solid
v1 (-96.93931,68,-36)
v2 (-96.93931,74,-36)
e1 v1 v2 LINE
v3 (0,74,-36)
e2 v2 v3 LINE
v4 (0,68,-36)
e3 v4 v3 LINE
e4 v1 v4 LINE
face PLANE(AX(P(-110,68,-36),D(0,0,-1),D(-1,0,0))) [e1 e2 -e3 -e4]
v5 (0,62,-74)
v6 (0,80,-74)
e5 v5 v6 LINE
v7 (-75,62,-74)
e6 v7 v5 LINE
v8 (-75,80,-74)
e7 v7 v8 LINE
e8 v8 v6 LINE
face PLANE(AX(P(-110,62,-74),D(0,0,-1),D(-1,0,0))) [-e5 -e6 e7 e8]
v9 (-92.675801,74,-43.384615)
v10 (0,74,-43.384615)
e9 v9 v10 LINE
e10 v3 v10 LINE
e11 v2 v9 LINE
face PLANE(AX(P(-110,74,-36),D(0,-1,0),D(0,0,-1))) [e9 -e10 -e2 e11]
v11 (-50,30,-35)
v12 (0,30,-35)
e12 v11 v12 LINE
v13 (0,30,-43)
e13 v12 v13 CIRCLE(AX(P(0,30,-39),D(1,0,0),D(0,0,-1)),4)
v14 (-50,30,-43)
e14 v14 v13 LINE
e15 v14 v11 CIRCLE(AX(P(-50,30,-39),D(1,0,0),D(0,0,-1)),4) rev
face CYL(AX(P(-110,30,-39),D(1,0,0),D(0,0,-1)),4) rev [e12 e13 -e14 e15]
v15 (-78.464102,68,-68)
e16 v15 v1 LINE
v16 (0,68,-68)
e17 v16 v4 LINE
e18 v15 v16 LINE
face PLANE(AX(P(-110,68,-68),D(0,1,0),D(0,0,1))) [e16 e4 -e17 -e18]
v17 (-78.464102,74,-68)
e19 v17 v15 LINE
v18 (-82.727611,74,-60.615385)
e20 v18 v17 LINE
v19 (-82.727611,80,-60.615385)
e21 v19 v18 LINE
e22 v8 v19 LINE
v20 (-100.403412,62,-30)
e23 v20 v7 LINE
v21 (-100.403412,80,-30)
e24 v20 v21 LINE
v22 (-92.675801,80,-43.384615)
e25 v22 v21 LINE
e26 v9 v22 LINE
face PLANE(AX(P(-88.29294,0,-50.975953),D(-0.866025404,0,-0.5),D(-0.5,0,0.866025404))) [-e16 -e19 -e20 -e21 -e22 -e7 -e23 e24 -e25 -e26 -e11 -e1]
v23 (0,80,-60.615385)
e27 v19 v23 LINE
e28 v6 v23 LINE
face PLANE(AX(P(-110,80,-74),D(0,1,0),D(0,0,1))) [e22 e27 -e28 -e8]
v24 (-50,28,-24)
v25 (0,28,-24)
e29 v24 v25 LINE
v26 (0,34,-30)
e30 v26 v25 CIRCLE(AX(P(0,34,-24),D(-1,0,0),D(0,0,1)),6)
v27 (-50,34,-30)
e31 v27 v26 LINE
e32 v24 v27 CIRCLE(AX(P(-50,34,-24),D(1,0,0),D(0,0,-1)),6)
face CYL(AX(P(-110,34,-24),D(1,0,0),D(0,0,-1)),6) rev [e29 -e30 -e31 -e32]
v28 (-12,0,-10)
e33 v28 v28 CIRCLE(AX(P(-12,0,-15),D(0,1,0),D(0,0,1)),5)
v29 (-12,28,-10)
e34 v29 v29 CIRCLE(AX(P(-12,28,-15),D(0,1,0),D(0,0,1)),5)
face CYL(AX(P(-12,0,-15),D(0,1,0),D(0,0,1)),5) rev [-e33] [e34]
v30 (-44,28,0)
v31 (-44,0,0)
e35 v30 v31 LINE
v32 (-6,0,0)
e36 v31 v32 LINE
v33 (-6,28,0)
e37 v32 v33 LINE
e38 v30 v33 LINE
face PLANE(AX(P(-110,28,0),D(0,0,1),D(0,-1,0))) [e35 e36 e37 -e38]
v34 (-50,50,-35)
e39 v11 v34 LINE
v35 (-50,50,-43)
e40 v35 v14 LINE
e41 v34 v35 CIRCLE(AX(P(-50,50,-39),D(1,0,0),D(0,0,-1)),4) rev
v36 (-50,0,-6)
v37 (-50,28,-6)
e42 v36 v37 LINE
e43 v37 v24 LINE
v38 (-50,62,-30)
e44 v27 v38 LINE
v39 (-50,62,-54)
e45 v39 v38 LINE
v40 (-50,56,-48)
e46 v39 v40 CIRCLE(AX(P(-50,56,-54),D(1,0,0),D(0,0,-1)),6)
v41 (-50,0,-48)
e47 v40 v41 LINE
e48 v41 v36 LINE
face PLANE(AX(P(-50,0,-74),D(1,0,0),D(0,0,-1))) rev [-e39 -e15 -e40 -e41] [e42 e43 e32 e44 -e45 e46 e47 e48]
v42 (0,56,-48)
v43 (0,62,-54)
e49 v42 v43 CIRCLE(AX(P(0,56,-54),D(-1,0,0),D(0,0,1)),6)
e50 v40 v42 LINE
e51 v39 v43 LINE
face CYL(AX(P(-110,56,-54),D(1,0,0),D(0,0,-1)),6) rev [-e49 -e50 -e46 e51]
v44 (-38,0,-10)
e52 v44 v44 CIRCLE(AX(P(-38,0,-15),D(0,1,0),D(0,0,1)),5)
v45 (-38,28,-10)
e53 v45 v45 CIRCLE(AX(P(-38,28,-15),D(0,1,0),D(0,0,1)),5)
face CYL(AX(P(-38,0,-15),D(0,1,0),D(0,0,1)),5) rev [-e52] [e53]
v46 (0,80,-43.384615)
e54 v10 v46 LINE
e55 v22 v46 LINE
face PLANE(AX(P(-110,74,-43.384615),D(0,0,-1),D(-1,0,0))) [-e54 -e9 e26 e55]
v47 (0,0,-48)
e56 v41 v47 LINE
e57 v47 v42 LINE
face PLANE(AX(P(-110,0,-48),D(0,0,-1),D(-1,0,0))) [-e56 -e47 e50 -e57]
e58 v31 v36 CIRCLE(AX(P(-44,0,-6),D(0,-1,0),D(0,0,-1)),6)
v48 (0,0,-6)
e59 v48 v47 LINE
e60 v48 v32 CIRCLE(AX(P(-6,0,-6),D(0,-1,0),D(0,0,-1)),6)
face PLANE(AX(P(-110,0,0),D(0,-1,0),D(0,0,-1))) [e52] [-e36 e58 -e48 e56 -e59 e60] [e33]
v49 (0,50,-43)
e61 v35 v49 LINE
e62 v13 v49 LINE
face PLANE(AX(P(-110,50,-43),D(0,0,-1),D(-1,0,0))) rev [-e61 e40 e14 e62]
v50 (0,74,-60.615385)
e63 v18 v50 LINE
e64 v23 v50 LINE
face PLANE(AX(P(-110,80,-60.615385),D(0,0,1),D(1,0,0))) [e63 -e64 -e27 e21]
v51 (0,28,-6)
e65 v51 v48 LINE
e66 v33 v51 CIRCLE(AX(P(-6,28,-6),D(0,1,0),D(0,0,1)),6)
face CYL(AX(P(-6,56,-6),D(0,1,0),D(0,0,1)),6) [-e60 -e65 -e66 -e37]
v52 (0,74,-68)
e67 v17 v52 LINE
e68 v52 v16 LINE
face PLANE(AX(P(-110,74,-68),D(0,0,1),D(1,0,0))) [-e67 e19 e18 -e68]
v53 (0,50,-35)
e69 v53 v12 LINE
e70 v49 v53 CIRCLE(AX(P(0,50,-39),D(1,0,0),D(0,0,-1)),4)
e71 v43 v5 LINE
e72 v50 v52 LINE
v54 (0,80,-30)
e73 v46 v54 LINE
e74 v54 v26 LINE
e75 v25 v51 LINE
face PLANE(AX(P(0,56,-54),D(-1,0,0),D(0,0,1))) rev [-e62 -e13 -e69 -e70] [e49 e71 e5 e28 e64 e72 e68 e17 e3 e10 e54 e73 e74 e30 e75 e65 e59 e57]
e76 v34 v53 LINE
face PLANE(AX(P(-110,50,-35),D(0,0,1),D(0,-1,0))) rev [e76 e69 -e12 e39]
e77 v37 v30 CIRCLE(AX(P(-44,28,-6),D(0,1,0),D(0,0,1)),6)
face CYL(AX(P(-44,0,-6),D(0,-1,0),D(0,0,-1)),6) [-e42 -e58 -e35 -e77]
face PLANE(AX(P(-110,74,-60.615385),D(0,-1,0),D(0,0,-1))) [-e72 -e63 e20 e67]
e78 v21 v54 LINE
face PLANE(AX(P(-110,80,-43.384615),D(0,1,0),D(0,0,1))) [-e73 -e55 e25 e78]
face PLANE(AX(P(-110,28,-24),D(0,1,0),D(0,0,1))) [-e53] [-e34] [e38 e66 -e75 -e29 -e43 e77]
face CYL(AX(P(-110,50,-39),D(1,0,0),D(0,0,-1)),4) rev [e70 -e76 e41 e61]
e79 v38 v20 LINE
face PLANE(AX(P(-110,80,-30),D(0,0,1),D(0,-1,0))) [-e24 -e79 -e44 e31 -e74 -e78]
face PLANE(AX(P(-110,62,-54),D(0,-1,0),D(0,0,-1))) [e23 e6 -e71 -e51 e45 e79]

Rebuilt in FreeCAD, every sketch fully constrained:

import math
import FreeCAD as App
import Part
import Sketcher

V = App.Vector
Q = App.Units.Quantity


def edges_at(feature, points):
    """Names of the edges that pass closest to the given points."""
    edges = feature.Shape.Edges
    near = lambda p: min(range(len(edges)), key=lambda i: edges[i].distToShape(Part.Vertex(*p))[0])
    return sorted({f"Edge{near(p) + 1}" for p in points})


def add_polygon(sketch, points):
    """Adds a closed chain of lines whose ends are joined by coincident constraints."""
    first, n = sketch.GeometryCount, len(points)
    for a, b in zip(points, points[1:] + points[:1]):
        sketch.addGeometry(Part.LineSegment(App.Vector(*a, 0), App.Vector(*b, 0)), False)
    for i in range(n):
        sketch.addConstraint(Sketcher.Constraint("Coincident", first + i, 2, first + (i + 1) % n, 1))

doc = App.newDocument("Part")
params = doc.addObject("Spreadsheet::Sheet", "Params")
for row, (alias, value) in enumerate([
    ("sketch1_radius", "6 mm"),
    ("sketch1_radius2", "4 mm"),
    ("sketch1_width", "56 mm"),
    ("sketch1_width2", "18 mm"),
    ("sketch1_width3", "6 mm"),
    ("pad1_length", "110 mm"),
    ("sketch2_width", "35 mm"),
    ("sketch3_height", "62 mm"),
    ("sketch4_diameter", "10 mm"),
    ("fillet_radius", "6 mm"),
], start=1):
    params.set(f"A{row}", alias)
    params.set(f"B{row}", "=" + value)
    params.setAlias(f"B{row}", alias)

body = doc.addObject("PartDesign::Body", "Body")

sketch1 = body.newObject("Sketcher::SketchObject", "Sketch")
sketch1.AttachmentSupport = (doc.getObject("YZ_Plane"), [""])
sketch1.MapMode = "FlatFace"
sketch1.addGeometry([
    Part.LineSegment(V(0, 0, 0), V(0, -48, 0)),
    Part.LineSegment(V(0, -48, 0), V(56, -48, 0)),
    Part.ArcOfCircle(Part.Circle(V(56, -54, 0), V(0, 0, 1), 6), math.radians(0), math.radians(90)),
    Part.LineSegment(V(62, -54, 0), V(62, -74, 0)),
    Part.LineSegment(V(62, -74, 0), V(80, -74, 0)),
    Part.LineSegment(V(80, -74, 0), V(80, -60.6, 0)),
    Part.LineSegment(V(80, -60.6, 0), V(74, -60.6, 0)),
    Part.LineSegment(V(74, -60.6, 0), V(74, -68, 0)),
    Part.LineSegment(V(74, -68, 0), V(68, -68, 0)),
    Part.LineSegment(V(68, -68, 0), V(68, -36, 0)),
    Part.LineSegment(V(68, -36, 0), V(74, -36, 0)),
    Part.LineSegment(V(74, -36, 0), V(74, -43.4, 0)),
    Part.LineSegment(V(74, -43.4, 0), V(80, -43.4, 0)),
    Part.LineSegment(V(80, -43.4, 0), V(80, -30, 0)),
    Part.LineSegment(V(80, -30, 0), V(34, -30, 0)),
    Part.ArcOfCircle(Part.Circle(V(34, -24, 0), V(0, 0, 1), 6), math.radians(180), math.radians(270)),
    Part.LineSegment(V(28, -24, 0), V(28, 0, 0)),
    Part.LineSegment(V(28, 0, 0), V(0, 0, 0)),
    Part.ArcOfCircle(Part.Circle(V(50, -39, 0), V(0, 0, 1), 4), math.radians(-90), math.radians(90)),
    Part.LineSegment(V(50, -43, 0), V(30, -43, 0)),
    Part.ArcOfCircle(Part.Circle(V(30, -39, 0), V(0, 0, 1), 4), math.radians(90), math.radians(270)),
    Part.LineSegment(V(30, -35, 0), V(50, -35, 0)),
], False)
sketch1.addConstraint([
    Sketcher.Constraint("Coincident", 0, 2, 1, 1),
    Sketcher.Constraint("Tangent", 1, 2, 2, 2),
    Sketcher.Constraint("Tangent", 2, 1, 3, 1),
    Sketcher.Constraint("Coincident", 3, 2, 4, 1),
    Sketcher.Constraint("Coincident", 4, 2, 5, 1),
    Sketcher.Constraint("Coincident", 5, 2, 6, 1),
    Sketcher.Constraint("Coincident", 6, 2, 7, 1),
    Sketcher.Constraint("Coincident", 7, 2, 8, 1),
    Sketcher.Constraint("Coincident", 8, 2, 9, 1),
    Sketcher.Constraint("Coincident", 9, 2, 10, 1),
    Sketcher.Constraint("Coincident", 10, 2, 11, 1),
    Sketcher.Constraint("Coincident", 11, 2, 12, 1),
    Sketcher.Constraint("Coincident", 12, 2, 13, 1),
    Sketcher.Constraint("Coincident", 13, 2, 14, 1),
    Sketcher.Constraint("Tangent", 14, 2, 15, 2),
    Sketcher.Constraint("Tangent", 15, 1, 16, 1),
    Sketcher.Constraint("Coincident", 16, 2, 17, 1),
    Sketcher.Constraint("Coincident", 17, 2, 0, 1),
    Sketcher.Constraint("Tangent", 18, 1, 19, 1),
    Sketcher.Constraint("Tangent", 19, 2, 20, 2),
    Sketcher.Constraint("Tangent", 20, 1, 21, 1),
    Sketcher.Constraint("Tangent", 21, 2, 18, 2),
    Sketcher.Constraint("Vertical", 0),
    Sketcher.Constraint("Horizontal", 1),
    Sketcher.Constraint("Vertical", 3),
    Sketcher.Constraint("Horizontal", 4),
    Sketcher.Constraint("Vertical", 5),
    Sketcher.Constraint("Horizontal", 6),
    Sketcher.Constraint("Vertical", 7),
    Sketcher.Constraint("Horizontal", 8),
    Sketcher.Constraint("Vertical", 9),
    Sketcher.Constraint("Horizontal", 10),
    Sketcher.Constraint("Vertical", 11),
    Sketcher.Constraint("Horizontal", 12),
    Sketcher.Constraint("Vertical", 13),
    Sketcher.Constraint("Horizontal", 14),
    Sketcher.Constraint("Vertical", 16),
    Sketcher.Constraint("Horizontal", 17),
    Sketcher.Constraint("Horizontal", 19),
    Sketcher.Constraint("Horizontal", 21),
    Sketcher.Constraint("Coincident", 17, 2, -1, 1),
    Sketcher.Constraint("Equal", 2, 15),
    Sketcher.Constraint("Vertical", 7, 2, 10, 2),
    Sketcher.Constraint("Vertical", 5, 2, 12, 2),
    Sketcher.Constraint("Equal", 6, 8),
    Sketcher.Constraint("Equal", 21, 3),
    Sketcher.Constraint("Equal", 7, 11),
    Sketcher.Constraint("Equal", 5, 13),
    Sketcher.Constraint("Radius", 2, Q("6 mm")),
    Sketcher.Constraint("Radius", 18, Q("4 mm")),
    Sketcher.Constraint("DistanceX", 1, 1, 1, 2, Q("56 mm")),
    Sketcher.Constraint("DistanceX", 4, 1, 4, 2, Q("18 mm")),
    Sketcher.Constraint("DistanceX", 6, 2, 6, 1, Q("6 mm")),
    Sketcher.Constraint("DistanceX", 14, 2, 14, 1, Q("46 mm")),
    Sketcher.Constraint("DistanceX", 19, 2, 19, 1, Q("20 mm")),
    Sketcher.Constraint("DistanceY", 0, 2, 0, 1, Q("48 mm")),
    Sketcher.Constraint("DistanceY", 9, 1, 9, 2, Q("32 mm")),
    Sketcher.Constraint("DistanceY", 16, 1, 16, 2, Q("24 mm")),
    Sketcher.Constraint("DistanceX", -1, 1, 18, 3, Q("50 mm")),
    Sketcher.Constraint("DistanceY", 18, 3, -1, 1, Q("39 mm")),
    Sketcher.Constraint("DistanceY", 5, 1, 5, 2, Q("13.384615 mm")),
])
sketch1.setExpression("Constraints[48]", "Params.sketch1_radius")
sketch1.setExpression("Constraints[49]", "Params.sketch1_radius2")
sketch1.setExpression("Constraints[50]", "Params.sketch1_width")
sketch1.setExpression("Constraints[51]", "Params.sketch1_width2")
sketch1.setExpression("Constraints[52]", "Params.sketch1_width3")
pad1 = body.newObject("PartDesign::Pad", "Pad")
pad1.Profile = sketch1
pad1.setExpression("Length", "Params.pad1_length")
pad1.Reversed = True

sketch2 = body.newObject("Sketcher::SketchObject", "Sketch001")
sketch2.AttachmentSupport = (doc.getObject("XZ_Plane"), [""])
sketch2.MapMode = "FlatFace"
sketch2.AttachmentOffset = App.Placement(V(0, 0, -80), App.Rotation())
add_polygon(sketch2, [(-110, -74), (-110, -13), (-75, -74)])
sketch2.addConstraint([
    Sketcher.Constraint("Vertical", 0),
    Sketcher.Constraint("Horizontal", 2),
    Sketcher.Constraint("DistanceX", 2, 2, 2, 1, Q("35 mm")),
    Sketcher.Constraint("Angle", 1, Q("-60 deg")),
    Sketcher.Constraint("DistanceX", 0, 2, -1, 1, Q("110 mm")),
    Sketcher.Constraint("DistanceY", 1, 2, -1, 1, Q("74 mm")),
])
sketch2.setExpression("Constraints[5]", "Params.sketch2_width")
pocket1 = body.newObject("PartDesign::Pocket", "Pocket")
pocket1.Profile = sketch2
pocket1.Type = "ThroughAll"
pocket1.Reversed = True

sketch3 = body.newObject("Sketcher::SketchObject", "Sketch002")
sketch3.AttachmentSupport = (doc.getObject("XY_Plane"), [""])
sketch3.MapMode = "FlatFace"
add_polygon(sketch3, [(-125, 62), (-125, 0), (-50, 0), (-50, 62)])
sketch3.addConstraint([
    Sketcher.Constraint("Vertical", 0),
    Sketcher.Constraint("Horizontal", 1),
    Sketcher.Constraint("Vertical", 2),
    Sketcher.Constraint("Horizontal", 3),
    Sketcher.Constraint("PointOnObject", 0, 2, -1),
    Sketcher.Constraint("DistanceY", 0, 2, 0, 1, Q("62 mm")),
    Sketcher.Constraint("DistanceX", 1, 2, -1, 1, Q("50 mm")),
    Sketcher.Constraint("DistanceX", 1, 1, 1, 2, Q("74.760259 mm")),
])
sketch3.setExpression("Constraints[9]", "Params.sketch3_height")
pocket2 = body.newObject("PartDesign::Pocket", "Pocket001")
pocket2.Profile = sketch3
pocket2.Type = "ThroughAll"

sketch4 = body.newObject("Sketcher::SketchObject", "Sketch003")
sketch4.AttachmentSupport = (doc.getObject("XZ_Plane"), [""])
sketch4.MapMode = "FlatFace"
sketch4.AttachmentOffset = App.Placement(V(0, 0, -28), App.Rotation())
sketch4.addGeometry([
    Part.Circle(V(-38, -15, 0), V(0, 0, 1), 5),
    Part.Circle(V(-12, -15, 0), V(0, 0, 1), 5),
], False)
sketch4.addConstraint([
    Sketcher.Constraint("Equal", 0, 1),
    Sketcher.Constraint("Horizontal", 0, 3, 1, 3),
    Sketcher.Constraint("Diameter", 0, Q("10 mm")),
    Sketcher.Constraint("DistanceX", 0, 3, -1, 1, Q("38 mm")),
    Sketcher.Constraint("DistanceY", 0, 3, -1, 1, Q("15 mm")),
    Sketcher.Constraint("DistanceX", 1, 3, -1, 1, Q("12 mm")),
])
sketch4.setExpression("Constraints[2]", "Params.sketch4_diameter")
pocket3 = body.newObject("PartDesign::Pocket", "Pocket002")
pocket3.Profile = sketch4
pocket3.Type = "ThroughAll"
pocket3.Reversed = True
doc.recompute()

fillet = body.newObject("PartDesign::Fillet", "Fillet")
fillet.Base = (pocket3, edges_at(pocket3, [(-50, 14, 0), (0, 14, 0)]))
fillet.setExpression("Radius", "Params.fillet_radius")

doc.recompute()
